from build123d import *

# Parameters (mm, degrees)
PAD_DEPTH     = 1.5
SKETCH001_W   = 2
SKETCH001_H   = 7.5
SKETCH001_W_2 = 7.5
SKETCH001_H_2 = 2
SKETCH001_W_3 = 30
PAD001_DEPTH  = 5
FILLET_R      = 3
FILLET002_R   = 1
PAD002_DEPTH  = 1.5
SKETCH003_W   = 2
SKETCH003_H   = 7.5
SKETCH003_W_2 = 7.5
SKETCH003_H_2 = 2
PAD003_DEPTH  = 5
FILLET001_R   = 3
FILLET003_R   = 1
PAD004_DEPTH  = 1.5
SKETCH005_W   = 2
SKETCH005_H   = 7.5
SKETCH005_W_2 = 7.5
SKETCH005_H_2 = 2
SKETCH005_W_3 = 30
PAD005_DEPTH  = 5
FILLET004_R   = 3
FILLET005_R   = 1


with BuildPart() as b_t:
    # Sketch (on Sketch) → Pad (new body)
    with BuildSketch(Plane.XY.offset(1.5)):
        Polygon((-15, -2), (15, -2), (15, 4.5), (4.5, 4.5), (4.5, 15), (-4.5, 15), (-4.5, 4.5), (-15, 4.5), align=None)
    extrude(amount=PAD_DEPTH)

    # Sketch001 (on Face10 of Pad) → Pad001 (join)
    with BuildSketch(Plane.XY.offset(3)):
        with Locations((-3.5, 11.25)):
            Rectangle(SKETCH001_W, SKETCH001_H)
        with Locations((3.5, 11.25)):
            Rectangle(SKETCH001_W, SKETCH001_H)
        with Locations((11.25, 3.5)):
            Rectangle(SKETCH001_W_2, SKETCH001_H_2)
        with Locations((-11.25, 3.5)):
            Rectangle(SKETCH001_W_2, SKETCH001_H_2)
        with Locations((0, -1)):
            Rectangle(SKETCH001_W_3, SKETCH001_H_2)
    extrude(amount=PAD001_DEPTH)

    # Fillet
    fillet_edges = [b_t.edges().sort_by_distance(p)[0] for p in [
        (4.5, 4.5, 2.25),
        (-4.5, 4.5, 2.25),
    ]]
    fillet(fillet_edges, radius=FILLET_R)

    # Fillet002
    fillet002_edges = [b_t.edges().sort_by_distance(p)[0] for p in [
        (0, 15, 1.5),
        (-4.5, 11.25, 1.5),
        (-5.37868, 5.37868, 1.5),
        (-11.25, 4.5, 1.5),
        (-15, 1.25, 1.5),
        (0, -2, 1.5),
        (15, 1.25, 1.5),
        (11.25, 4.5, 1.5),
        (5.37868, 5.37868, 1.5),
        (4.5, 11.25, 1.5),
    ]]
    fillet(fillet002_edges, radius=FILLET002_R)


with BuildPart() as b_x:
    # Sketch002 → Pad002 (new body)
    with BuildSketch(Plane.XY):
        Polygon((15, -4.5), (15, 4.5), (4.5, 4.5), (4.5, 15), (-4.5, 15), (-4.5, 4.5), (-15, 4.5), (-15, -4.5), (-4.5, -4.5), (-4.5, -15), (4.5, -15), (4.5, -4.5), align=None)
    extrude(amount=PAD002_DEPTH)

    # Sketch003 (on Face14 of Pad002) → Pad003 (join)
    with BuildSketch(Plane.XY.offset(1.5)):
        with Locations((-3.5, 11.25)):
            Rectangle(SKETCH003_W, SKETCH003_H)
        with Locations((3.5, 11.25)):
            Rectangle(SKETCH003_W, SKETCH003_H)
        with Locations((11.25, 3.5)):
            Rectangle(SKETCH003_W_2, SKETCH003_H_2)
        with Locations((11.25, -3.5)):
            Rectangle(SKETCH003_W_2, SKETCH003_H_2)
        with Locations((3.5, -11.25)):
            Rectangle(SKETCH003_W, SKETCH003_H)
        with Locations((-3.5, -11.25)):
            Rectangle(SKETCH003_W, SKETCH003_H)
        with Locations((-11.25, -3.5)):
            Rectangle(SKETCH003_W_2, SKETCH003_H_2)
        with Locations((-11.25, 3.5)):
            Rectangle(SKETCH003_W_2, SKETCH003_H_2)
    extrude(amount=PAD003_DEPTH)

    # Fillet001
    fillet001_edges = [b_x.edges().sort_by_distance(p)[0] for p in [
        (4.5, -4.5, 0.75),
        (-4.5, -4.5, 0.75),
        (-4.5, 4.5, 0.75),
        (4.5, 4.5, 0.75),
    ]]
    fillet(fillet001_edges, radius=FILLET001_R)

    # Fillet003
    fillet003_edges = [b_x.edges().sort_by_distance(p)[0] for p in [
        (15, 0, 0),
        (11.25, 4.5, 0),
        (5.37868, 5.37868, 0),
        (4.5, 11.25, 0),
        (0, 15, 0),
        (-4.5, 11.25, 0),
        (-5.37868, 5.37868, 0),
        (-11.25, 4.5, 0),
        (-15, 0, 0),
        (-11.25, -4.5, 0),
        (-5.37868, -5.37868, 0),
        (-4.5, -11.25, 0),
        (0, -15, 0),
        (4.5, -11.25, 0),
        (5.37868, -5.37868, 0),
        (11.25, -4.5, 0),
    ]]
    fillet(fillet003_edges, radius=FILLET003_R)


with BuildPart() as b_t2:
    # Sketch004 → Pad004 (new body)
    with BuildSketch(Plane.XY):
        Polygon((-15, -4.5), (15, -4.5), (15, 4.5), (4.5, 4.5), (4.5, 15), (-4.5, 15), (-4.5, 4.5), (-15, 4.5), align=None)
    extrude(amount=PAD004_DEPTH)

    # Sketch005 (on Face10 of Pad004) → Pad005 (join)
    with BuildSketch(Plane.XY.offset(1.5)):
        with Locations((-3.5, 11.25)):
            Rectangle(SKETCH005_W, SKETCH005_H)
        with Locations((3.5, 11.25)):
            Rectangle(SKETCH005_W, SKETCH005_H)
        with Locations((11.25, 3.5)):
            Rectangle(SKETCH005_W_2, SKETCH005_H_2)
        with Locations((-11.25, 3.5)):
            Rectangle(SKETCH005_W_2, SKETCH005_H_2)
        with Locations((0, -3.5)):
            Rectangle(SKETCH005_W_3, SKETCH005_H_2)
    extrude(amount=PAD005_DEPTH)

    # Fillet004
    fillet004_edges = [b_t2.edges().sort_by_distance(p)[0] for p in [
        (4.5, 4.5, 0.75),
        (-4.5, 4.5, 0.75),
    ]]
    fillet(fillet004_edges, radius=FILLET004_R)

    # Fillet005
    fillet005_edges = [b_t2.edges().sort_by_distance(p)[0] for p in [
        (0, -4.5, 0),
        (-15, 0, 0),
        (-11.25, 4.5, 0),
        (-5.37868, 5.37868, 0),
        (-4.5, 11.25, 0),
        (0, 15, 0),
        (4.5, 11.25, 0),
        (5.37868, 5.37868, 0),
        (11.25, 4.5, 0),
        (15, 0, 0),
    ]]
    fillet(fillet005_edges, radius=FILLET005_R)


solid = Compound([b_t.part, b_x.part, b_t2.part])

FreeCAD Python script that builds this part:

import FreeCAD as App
import Part
import Sketcher
Q = App.Units.Quantity


def edges_at(feature, points):
    """Names of the edges that pass closest to the given points."""
    edges = feature.Shape.Edges
    near = lambda p: min(range(len(edges)), key=lambda i: edges[i].distToShape(Part.Vertex(*p))[0])
    return sorted({f"Edge{near(p) + 1}" for p in points})

doc = App.newDocument("Part")
params = doc.addObject("Spreadsheet::Sheet", "Params")
for row, (alias, value) in enumerate([
    ("sketch1_width", "30 mm"),
    ("sketch1_width2", "9 mm"),
    ("sketch1_height", "6.5 mm"),
    ("pad1_length", "1.5 mm"),
    ("sketch2_width", "2 mm"),
    ("sketch2_width2", "30 mm"),
    ("sketch2_width3", "7.5 mm"),
    ("pad2_length", "5 mm"),
    ("fillet_radius", "3 mm"),
    ("fillet2_radius", "1 mm"),
    ("sketch3_width", "9 mm"),
    ("sketch3_width2", "10.5 mm"),
    ("pad3_length", "1.5 mm"),
    ("sketch4_width", "2 mm"),
    ("sketch4_width2", "7.5 mm"),
    ("pad4_length", "5 mm"),
    ("fillet3_radius", "3 mm"),
    ("fillet4_radius", "1 mm"),
    ("sketch5_width", "30 mm"),
    ("sketch5_width2", "9 mm"),
    ("pad5_length", "1.5 mm"),
    ("sketch6_width", "2 mm"),
    ("sketch6_width2", "30 mm"),
    ("sketch6_width3", "7.5 mm"),
    ("pad6_length", "5 mm"),
    ("fillet5_radius", "3 mm"),
    ("fillet6_radius", "1 mm"),
], start=1):
    params.set(f"A{row}", alias)
    params.set(f"B{row}", "=" + value)
    params.setAlias(f"B{row}", alias)

body = doc.addObject("PartDesign::Body", "Body")

# Sketch on XY plane
sketch1 = body.newObject("Sketcher::SketchObject", "Sketch")
sketch1.AttachmentSupport = (doc.getObject("XY_Plane"), [""])
sketch1.MapMode = "FlatFace"
sketch1.AttachmentOffset = App.Placement(App.Vector(0, 0, 1.5), App.Rotation())
sketch1.addGeometry([
    Part.LineSegment(App.Vector(-15, -2, 0), App.Vector(15, -2, 0)),  # 0
    Part.LineSegment(App.Vector(15, -2, 0), App.Vector(15, 4, 0)),  # 1
    Part.LineSegment(App.Vector(15, 4, 0), App.Vector(4, 4, 0)),  # 2
    Part.LineSegment(App.Vector(4, 4, 0), App.Vector(4, 15, 0)),  # 3
    Part.LineSegment(App.Vector(4, 15, 0), App.Vector(-4, 15, 0)),  # 4
    Part.LineSegment(App.Vector(-4, 15, 0), App.Vector(-4, 4, 0)),  # 5
    Part.LineSegment(App.Vector(-4, 4, 0), App.Vector(-15, 4, 0)),  # 6
    Part.LineSegment(App.Vector(-15, 4, 0), App.Vector(-15, -2, 0)),  # 7
], False)
sketch1.addConstraint([
    Sketcher.Constraint("Coincident", 0, 2, 1, 1),
    Sketcher.Constraint("Coincident", 1, 2, 2, 1),
    Sketcher.Constraint("Coincident", 2, 2, 3, 1),
    Sketcher.Constraint("Coincident", 3, 2, 4, 1),
    Sketcher.Constraint("Coincident", 4, 2, 5, 1),
    Sketcher.Constraint("Coincident", 5, 2, 6, 1),
    Sketcher.Constraint("Coincident", 6, 2, 7, 1),
    Sketcher.Constraint("Coincident", 7, 2, 0, 1),
    Sketcher.Constraint("Horizontal", 0),
    Sketcher.Constraint("Vertical", 1),
    Sketcher.Constraint("Horizontal", 2),
    Sketcher.Constraint("Vertical", 3),
    Sketcher.Constraint("Horizontal", 4),
    Sketcher.Constraint("Vertical", 5),
    Sketcher.Constraint("Horizontal", 6),
    Sketcher.Constraint("Vertical", 7),
    Sketcher.Constraint("Symmetric", 2, 2, 5, 2, -2),
    Sketcher.Constraint("Equal", 2, 6),
    Sketcher.Constraint("Equal", 6, 3),
    Sketcher.Constraint("DistanceX", 0, 1, 0, 2, Q("30 mm")),
    Sketcher.Constraint("DistanceX", 4, 2, 4, 1, Q("9 mm")),
    Sketcher.Constraint("DistanceY", 1, 1, 1, 2, Q("6.5 mm")),
    Sketcher.Constraint("DistanceY", 0, 2, -1, 1, Q("2 mm")),
])
sketch1.setExpression("Constraints[19]", "Params.sketch1_width")
sketch1.setExpression("Constraints[20]", "Params.sketch1_width2")
sketch1.setExpression("Constraints[21]", "Params.sketch1_height")
pad1 = body.newObject("PartDesign::Pad", "Pad")
pad1.Profile = sketch1
pad1.setExpression("Length", "Params.pad1_length")

# Sketch on XY plane
sketch2 = body.newObject("Sketcher::SketchObject", "Sketch001")
sketch2.AttachmentSupport = (doc.getObject("XY_Plane"), [""])
sketch2.MapMode = "FlatFace"
sketch2.AttachmentOffset = App.Placement(App.Vector(0, 0, 3), App.Rotation())
sketch2.addGeometry([
    Part.LineSegment(App.Vector(-4.5, 15, 0), App.Vector(-4.5, 7.5, 0)),  # 0
    Part.LineSegment(App.Vector(-4.5, 7.5, 0), App.Vector(-2.5, 7.5, 0)),  # 1
    Part.LineSegment(App.Vector(-2.5, 7.5, 0), App.Vector(-2.5, 15, 0)),  # 2
    Part.LineSegment(App.Vector(-2.5, 15, 0), App.Vector(-4.5, 15, 0)),  # 3
    Part.LineSegment(App.Vector(2.5, 15, 0), App.Vector(2.5, 7.5, 0)),  # 4
    Part.LineSegment(App.Vector(2.5, 7.5, 0), App.Vector(4.5, 7.5, 0)),  # 5
    Part.LineSegment(App.Vector(4.5, 7.5, 0), App.Vector(4.5, 15, 0)),  # 6
    Part.LineSegment(App.Vector(4.5, 15, 0), App.Vector(2.5, 15, 0)),  # 7
    Part.LineSegment(App.Vector(7.5, 4.5, 0), App.Vector(7.5, 2.5, 0)),  # 8
    Part.LineSegment(App.Vector(7.5, 2.5, 0), App.Vector(15, 2.5, 0)),  # 9
    Part.LineSegment(App.Vector(15, 2.5, 0), App.Vector(15, 4.5, 0)),  # 10
    Part.LineSegment(App.Vector(15, 4.5, 0), App.Vector(7.5, 4.5, 0)),  # 11
    Part.LineSegment(App.Vector(-15, 4.5, 0), App.Vector(-15, 2.5, 0)),  # 12
    Part.LineSegment(App.Vector(-15, 2.5, 0), App.Vector(-7.5, 2.5, 0)),  # 13
    Part.LineSegment(App.Vector(-7.5, 2.5, 0), App.Vector(-7.5, 4.5, 0)),  # 14
    Part.LineSegment(App.Vector(-7.5, 4.5, 0), App.Vector(-15, 4.5, 0)),  # 15
    Part.LineSegment(App.Vector(-15, 0, 0), App.Vector(-15, -2, 0)),  # 16
    Part.LineSegment(App.Vector(-15, -2, 0), App.Vector(15, -2, 0)),  # 17
    Part.LineSegment(App.Vector(15, -2, 0), App.Vector(15, 0, 0)),  # 18
    Part.LineSegment(App.Vector(15, 0, 0), App.Vector(-15, 0, 0)),  # 19
], False)
sketch2.addConstraint([
    Sketcher.Constraint("Coincident", 0, 2, 1, 1),
    Sketcher.Constraint("Coincident", 1, 2, 2, 1),
    Sketcher.Constraint("Coincident", 2, 2, 3, 1),
    Sketcher.Constraint("Coincident", 3, 2, 0, 1),
    Sketcher.Constraint("Coincident", 4, 2, 5, 1),
    Sketcher.Constraint("Coincident", 5, 2, 6, 1),
    Sketcher.Constraint("Coincident", 6, 2, 7, 1),
    Sketcher.Constraint("Coincident", 7, 2, 4, 1),
    Sketcher.Constraint("Coincident", 8, 2, 9, 1),
    Sketcher.Constraint("Coincident", 9, 2, 10, 1),
    Sketcher.Constraint("Coincident", 10, 2, 11, 1),
    Sketcher.Constraint("Coincident", 11, 2, 8, 1),
    Sketcher.Constraint("Coincident", 12, 2, 13, 1),
    Sketcher.Constraint("Coincident", 13, 2, 14, 1),
    Sketcher.Constraint("Coincident", 14, 2, 15, 1),
    Sketcher.Constraint("Coincident", 15, 2, 12, 1),
    Sketcher.Constraint("Coincident", 16, 2, 17, 1),
    Sketcher.Constraint("Coincident", 17, 2, 18, 1),
    Sketcher.Constraint("Coincident", 18, 2, 19, 1),
    Sketcher.Constraint("Coincident", 19, 2, 16, 1),
    Sketcher.Constraint("Vertical", 0),
    Sketcher.Constraint("Horizontal", 1),
    Sketcher.Constraint("Vertical", 2),
    Sketcher.Constraint("Horizontal", 3),
    Sketcher.Constraint("Vertical", 4),
    Sketcher.Constraint("Horizontal", 5),
    Sketcher.Constraint("Vertical", 6),
    Sketcher.Constraint("Horizontal", 7),
    Sketcher.Constraint("Vertical", 8),
    Sketcher.Constraint("Horizontal", 9),
    Sketcher.Constraint("Vertical", 10),
    Sketcher.Constraint("Horizontal", 11),
    Sketcher.Constraint("Vertical", 12),
    Sketcher.Constraint("Horizontal", 13),
    Sketcher.Constraint("Vertical", 14),
    Sketcher.Constraint("Horizontal", 15),
    Sketcher.Constraint("Vertical", 16),
    Sketcher.Constraint("Horizontal", 17),
    Sketcher.Constraint("Vertical", 18),
    Sketcher.Constraint("Horizontal", 19),
    Sketcher.Constraint("Symmetric", 18, 2, 19, 2, -1, 1),
    Sketcher.Constraint("Symmetric", 1, 2, 4, 2, -2),
    Sketcher.Constraint("Symmetric", 3, 2, 6, 2, -2),
    Sketcher.Constraint("Symmetric", 9, 2, 12, 2, -2),
    Sketcher.Constraint("Symmetric", 11, 2, 14, 2, -2),
    Sketcher.Constraint("Vertical", 15, 2, 16, 2),
    Sketcher.Constraint("Equal", 15, 0),
    Sketcher.Constraint("Equal", 7, 8),
    Sketcher.Constraint("Equal", 14, 16),
    Sketcher.Constraint("DistanceX", 1, 1, 1, 2, Q("2 mm")),
    Sketcher.Constraint("DistanceX", 17, 1, 17, 2, Q("30 mm")),
    Sketcher.Constraint("DistanceX", 9, 1, 9, 2, Q("7.5 mm")),
    Sketcher.Constraint("DistanceY", -1, 1, 2, 2, Q("15 mm")),
    Sketcher.Constraint("DistanceX", 1, 2, 4, 2, Q("5 mm")),
    Sketcher.Constraint("DistanceY", 8, 2, 5, 2, Q("5 mm")),
])
sketch2.setExpression("Constraints[49]", "Params.sketch2_width")
sketch2.setExpression("Constraints[50]", "Params.sketch2_width2")
sketch2.setExpression("Constraints[51]", "Params.sketch2_width3")
pad2 = body.newObject("PartDesign::Pad", "Pad001")
pad2.Profile = sketch2
pad2.setExpression("Length", "Params.pad2_length")
doc.recompute()

fillet = body.newObject("PartDesign::Fillet", "Fillet")
fillet.Base = (pad2, edges_at(pad2, [(4.5, 4.5, 2.25), (-4.5, 4.5, 2.25)]))
fillet.setExpression("Radius", "Params.fillet_radius")
doc.recompute()

fillet2 = body.newObject("PartDesign::Fillet", "Fillet001")
fillet2.Base = (fillet, edges_at(fillet, [
    (0, 15, 1.5),
    (-4.5, 11.25, 1.5),
    (-5.379, 5.379, 1.5),
    (-11.25, 4.5, 1.5),
    (-15, 1.25, 1.5),
    (0, -2, 1.5),
    (15, 1.25, 1.5),
    (11.25, 4.5, 1.5),
    (5.379, 5.379, 1.5),
    (4.5, 11.25, 1.5),
]))
fillet2.setExpression("Radius", "Params.fillet2_radius")
body2 = doc.addObject("PartDesign::Body", "Body001")

# Sketch on XY plane
sketch3 = body2.newObject("Sketcher::SketchObject", "Sketch002")
sketch3.AttachmentSupport = (doc.getObject("XY_Plane001"), [""])
sketch3.MapMode = "FlatFace"
sketch3.addGeometry([
    Part.LineSegment(App.Vector(15, -4, 0), App.Vector(15, 4, 0)),  # 0
    Part.LineSegment(App.Vector(15, 4, 0), App.Vector(4, 4, 0)),  # 1
    Part.LineSegment(App.Vector(4, 4, 0), App.Vector(4, 15, 0)),  # 2
    Part.LineSegment(App.Vector(4, 15, 0), App.Vector(-4, 15, 0)),  # 3
    Part.LineSegment(App.Vector(-4, 15, 0), App.Vector(-4, 4, 0)),  # 4
    Part.LineSegment(App.Vector(-4, 4, 0), App.Vector(-15, 4, 0)),  # 5
    Part.LineSegment(App.Vector(-15, 4, 0), App.Vector(-15, -4, 0)),  # 6
    Part.LineSegment(App.Vector(-15, -4, 0), App.Vector(-4, -4, 0)),  # 7
    Part.LineSegment(App.Vector(-4, -4, 0), App.Vector(-4, -15, 0)),  # 8
    Part.LineSegment(App.Vector(-4, -15, 0), App.Vector(4, -15, 0)),  # 9
    Part.LineSegment(App.Vector(4, -15, 0), App.Vector(4, -4, 0)),  # 10
    Part.LineSegment(App.Vector(4, -4, 0), App.Vector(15, -4, 0)),  # 11
], False)
sketch3.addConstraint([
    Sketcher.Constraint("Coincident", 0, 2, 1, 1),
    Sketcher.Constraint("Coincident", 1, 2, 2, 1),
    Sketcher.Constraint("Coincident", 2, 2, 3, 1),
    Sketcher.Constraint("Coincident", 3, 2, 4, 1),
    Sketcher.Constraint("Coincident", 4, 2, 5, 1),
    Sketcher.Constraint("Coincident", 5, 2, 6, 1),
    Sketcher.Constraint("Coincident", 6, 2, 7, 1),
    Sketcher.Constraint("Coincident", 7, 2, 8, 1),
    Sketcher.Constraint("Coincident", 8, 2, 9, 1),
    Sketcher.Constraint("Coincident", 9, 2, 10, 1),
    Sketcher.Constraint("Coincident", 10, 2, 11, 1),
    Sketcher.Constraint("Coincident", 11, 2, 0, 1),
    Sketcher.Constraint("Vertical", 0),
    Sketcher.Constraint("Horizontal", 1),
    Sketcher.Constraint("Vertical", 2),
    Sketcher.Constraint("Horizontal", 3),
    Sketcher.Constraint("Vertical", 4),
    Sketcher.Constraint("Horizontal", 5),
    Sketcher.Constraint("Vertical", 6),
    Sketcher.Constraint("Horizontal", 7),
    Sketcher.Constraint("Vertical", 8),
    Sketcher.Constraint("Horizontal", 9),
    Sketcher.Constraint("Vertical", 10),
    Sketcher.Constraint("Horizontal", 11),
    Sketcher.Constraint("Symmetric", 0, 2, 6, 2, -1, 1),
    Sketcher.Constraint("Symmetric", 2, 2, 8, 2, -1, 1),
    Sketcher.Constraint("Symmetric", 4, 2, 10, 2, -1, 1),
    Sketcher.Constraint("Symmetric", 1, 2, 4, 2, -2),
    Sketcher.Constraint("Equal", 9, 0),
    Sketcher.Constraint("Equal", 11, 2),
    Sketcher.Constraint("DistanceX", 3, 2, 3, 1, Q("9 mm")),
    Sketcher.Constraint("DistanceX", 1, 2, 1, 1, Q("10.5 mm")),
])
sketch3.setExpression("Constraints[30]", "Params.sketch3_width")
sketch3.setExpression("Constraints[31]", "Params.sketch3_width2")
pad3 = body2.newObject("PartDesign::Pad", "Pad002")
pad3.Profile = sketch3
pad3.setExpression("Length", "Params.pad3_length")

# Sketch on XY plane
sketch4 = body2.newObject("Sketcher::SketchObject", "Sketch003")
sketch4.AttachmentSupport = (doc.getObject("XY_Plane001"), [""])
sketch4.MapMode = "FlatFace"
sketch4.AttachmentOffset = App.Placement(App.Vector(0, 0, 1.5), App.Rotation())
sketch4.addGeometry([
    Part.LineSegment(App.Vector(-4.5, 15, 0), App.Vector(-4.5, 7.5, 0)),  # 0
    Part.LineSegment(App.Vector(-4.5, 7.5, 0), App.Vector(-2.5, 7.5, 0)),  # 1
    Part.LineSegment(App.Vector(-2.5, 7.5, 0), App.Vector(-2.5, 15, 0)),  # 2
    Part.LineSegment(App.Vector(-2.5, 15, 0), App.Vector(-4.5, 15, 0)),  # 3
    Part.LineSegment(App.Vector(2.5, 15, 0), App.Vector(2.5, 7.5, 0)),  # 4
    Part.LineSegment(App.Vector(2.5, 7.5, 0), App.Vector(4.5, 7.5, 0)),  # 5
    Part.LineSegment(App.Vector(4.5, 7.5, 0), App.Vector(4.5, 15, 0)),  # 6
    Part.LineSegment(App.Vector(4.5, 15, 0), App.Vector(2.5, 15, 0)),  # 7
    Part.LineSegment(App.Vector(7.5, 4.5, 0), App.Vector(7.5, 2.5, 0)),  # 8
    Part.LineSegment(App.Vector(7.5, 2.5, 0), App.Vector(15, 2.5, 0)),  # 9
    Part.LineSegment(App.Vector(15, 2.5, 0), App.Vector(15, 4.5, 0)),  # 10
    Part.LineSegment(App.Vector(15, 4.5, 0), App.Vector(7.5, 4.5, 0)),  # 11
    Part.LineSegment(App.Vector(7.5, -2.5, 0), App.Vector(7.5, -4.5, 0)),  # 12
    Part.LineSegment(App.Vector(7.5, -4.5, 0), App.Vector(15, -4.5, 0)),  # 13
    Part.LineSegment(App.Vector(15, -4.5, 0), App.Vector(15, -2.5, 0)),  # 14
    Part.LineSegment(App.Vector(15, -2.5, 0), App.Vector(7.5, -2.5, 0)),  # 15
    Part.LineSegment(App.Vector(2.5, -7.5, 0), App.Vector(2.5, -15, 0)),  # 16
    Part.LineSegment(App.Vector(2.5, -15, 0), App.Vector(4.5, -15, 0)),  # 17
    Part.LineSegment(App.Vector(4.5, -15, 0), App.Vector(4.5, -7.5, 0)),  # 18
    Part.LineSegment(App.Vector(4.5, -7.5, 0), App.Vector(2.5, -7.5, 0)),  # 19
    Part.LineSegment(App.Vector(-4.5, -7.5, 0), App.Vector(-4.5, -15, 0)),  # 20
    Part.LineSegment(App.Vector(-4.5, -15, 0), App.Vector(-2.5, -15, 0)),  # 21
    Part.LineSegment(App.Vector(-2.5, -15, 0), App.Vector(-2.5, -7.5, 0)),  # 22
    Part.LineSegment(App.Vector(-2.5, -7.5, 0), App.Vector(-4.5, -7.5, 0)),  # 23
    Part.LineSegment(App.Vector(-15, -2.5, 0), App.Vector(-15, -4.5, 0)),  # 24
    Part.LineSegment(App.Vector(-15, -4.5, 0), App.Vector(-7.5, -4.5, 0)),  # 25
    Part.LineSegment(App.Vector(-7.5, -4.5, 0), App.Vector(-7.5, -2.5, 0)),  # 26
    Part.LineSegment(App.Vector(-7.5, -2.5, 0), App.Vector(-15, -2.5, 0)),  # 27
    Part.LineSegment(App.Vector(-15, 4.5, 0), App.Vector(-15, 2.5, 0)),  # 28
    Part.LineSegment(App.Vector(-15, 2.5, 0), App.Vector(-7.5, 2.5, 0)),  # 29
    Part.LineSegment(App.Vector(-7.5, 2.5, 0), App.Vector(-7.5, 4.5, 0)),  # 30
    Part.LineSegment(App.Vector(-7.5, 4.5, 0), App.Vector(-15, 4.5, 0)),  # 31
], False)
sketch4.addConstraint([
    Sketcher.Constraint("Coincident", 0, 2, 1, 1),
    Sketcher.Constraint("Coincident", 1, 2, 2, 1),
    Sketcher.Constraint("Coincident", 2, 2, 3, 1),
    Sketcher.Constraint("Coincident", 3, 2, 0, 1),
    Sketcher.Constraint("Coincident", 4, 2, 5, 1),
    Sketcher.Constraint("Coincident", 5, 2, 6, 1),
    Sketcher.Constraint("Coincident", 6, 2, 7, 1),
    Sketcher.Constraint("Coincident", 7, 2, 4, 1),
    Sketcher.Constraint("Coincident", 8, 2, 9, 1),
    Sketcher.Constraint("Coincident", 9, 2, 10, 1),
    Sketcher.Constraint("Coincident", 10, 2, 11, 1),
    Sketcher.Constraint("Coincident", 11, 2, 8, 1),
    Sketcher.Constraint("Coincident", 12, 2, 13, 1),
    Sketcher.Constraint("Coincident", 13, 2, 14, 1),
    Sketcher.Constraint("Coincident", 14, 2, 15, 1),
    Sketcher.Constraint("Coincident", 15, 2, 12, 1),
    Sketcher.Constraint("Coincident", 16, 2, 17, 1),
    Sketcher.Constraint("Coincident", 17, 2, 18, 1),
    Sketcher.Constraint("Coincident", 18, 2, 19, 1),
    Sketcher.Constraint("Coincident", 19, 2, 16, 1),
    Sketcher.Constraint("Coincident", 20, 2, 21, 1),
    Sketcher.Constraint("Coincident", 21, 2, 22, 1),
    Sketcher.Constraint("Coincident", 22, 2, 23, 1),
    Sketcher.Constraint("Coincident", 23, 2, 20, 1),
    Sketcher.Constraint("Coincident", 24, 2, 25, 1),
    Sketcher.Constraint("Coincident", 25, 2, 26, 1),
    Sketcher.Constraint("Coincident", 26, 2, 27, 1),
    Sketcher.Constraint("Coincident", 27, 2, 24, 1),
    Sketcher.Constraint("Coincident", 28, 2, 29, 1),
    Sketcher.Constraint("Coincident", 29, 2, 30, 1),
    Sketcher.Constraint("Coincident", 30, 2, 31, 1),
    Sketcher.Constraint("Coincident", 31, 2, 28, 1),
    Sketcher.Constraint("Vertical", 0),
    Sketcher.Constraint("Horizontal", 1),
    Sketcher.Constraint("Vertical", 2),
    Sketcher.Constraint("Horizontal", 3),
    Sketcher.Constraint("Vertical", 4),
    Sketcher.Constraint("Horizontal", 5),
    Sketcher.Constraint("Vertical", 6),
    Sketcher.Constraint("Horizontal", 7),
    Sketcher.Constraint("Vertical", 8),
    Sketcher.Constraint("Horizontal", 9),
    Sketcher.Constraint("Vertical", 10),
    Sketcher.Constraint("Horizontal", 11),
    Sketcher.Constraint("Vertical", 12),
    Sketcher.Constraint("Horizontal", 13),
    Sketcher.Constraint("Vertical", 14),
    Sketcher.Constraint("Horizontal", 15),
    Sketcher.Constraint("Vertical", 16),
    Sketcher.Constraint("Horizontal", 17),
    Sketcher.Constraint("Vertical", 18),
    Sketcher.Constraint("Horizontal", 19),
    Sketcher.Constraint("Vertical", 20),
    Sketcher.Constraint("Horizontal", 21),
    Sketcher.Constraint("Vertical", 22),
    Sketcher.Constraint("Horizontal", 23),
    Sketcher.Constraint("Vertical", 24),
    Sketcher.Constraint("Horizontal", 25),
    Sketcher.Constraint("Vertical", 26),
    Sketcher.Constraint("Horizontal", 27),
    Sketcher.Constraint("Vertical", 28),
    Sketcher.Constraint("Horizontal", 29),
    Sketcher.Constraint("Vertical", 30),
    Sketcher.Constraint("Horizontal", 31),
    Sketcher.Constraint("Symmetric", 2, 2, 16, 2, -1, 1),
    Sketcher.Constraint("Symmetric", 0, 2, 18, 2, -1, 1),
    Sketcher.Constraint("Symmetric", 6, 2, 20, 2, -1, 1),
    Sketcher.Constraint("Symmetric", 4, 2, 22, 2, -1, 1),
    Sketcher.Constraint("Symmetric", 10, 2, 24, 2, -1, 1),
    Sketcher.Constraint("Symmetric", 8, 2, 26, 2, -1, 1),
    Sketcher.Constraint("Symmetric", 14, 2, 28, 2, -1, 1),
    Sketcher.Constraint("Symmetric", 12, 2, 30, 2, -1, 1),
    Sketcher.Constraint("Symmetric", 1, 2, 4, 2, -2),
    Sketcher.Constraint("Symmetric", 3, 2, 6, 2, -2),
    Sketcher.Constraint("Symmetric", 13, 2, 24, 2, -2),
    Sketcher.Constraint("Symmetric", 15, 2, 26, 2, -2),
    Sketcher.Constraint("Equal", 31, 0),
    Sketcher.Constraint("Equal", 23, 8),
    Sketcher.Constraint("DistanceX", 1, 1, 1, 2, Q("2 mm")),
    Sketcher.Constraint("DistanceX", 9, 1, 9, 2, Q("7.5 mm")),
    Sketcher.Constraint("DistanceY", -1, 1, 2, 2, Q("15 mm")),
    Sketcher.Constraint("DistanceX", -1, 1, 9, 2, Q("15 mm")),
    Sketcher.Constraint("DistanceX", 1, 2, 4, 2, Q("5 mm")),
    Sketcher.Constraint("DistanceY", 8, 2, 5, 2, Q("5 mm")),
])
sketch4.setExpression("Constraints[78]", "Params.sketch4_width")
sketch4.setExpression("Constraints[79]", "Params.sketch4_width2")
pad4 = body2.newObject("PartDesign::Pad", "Pad003")
pad4.Profile = sketch4
pad4.setExpression("Length", "Params.pad4_length")
doc.recompute()

fillet3 = body2.newObject("PartDesign::Fillet", "Fillet002")
fillet3.Base = (pad4, edges_at(pad4, [
    (4.5, -4.5, 0.75),
    (-4.5, -4.5, 0.75),
    (-4.5, 4.5, 0.75),
    (4.5, 4.5, 0.75),
]))
fillet3.setExpression("Radius", "Params.fillet3_radius")
doc.recompute()

fillet4 = body2.newObject("PartDesign::Fillet", "Fillet003")
fillet4.Base = (fillet3, edges_at(fillet3, [
    (15, 0, 0),
    (11.25, 4.5, 0),
    (5.379, 5.379, 0),
    (4.5, 11.25, 0),
    (0, 15, 0),
    (-4.5, 11.25, 0),
    (-5.379, 5.379, 0),
    (-11.25, 4.5, 0),
    (-15, 0, 0),
    (-11.25, -4.5, 0),
    (-5.379, -5.379, 0),
    (-4.5, -11.25, 0),
    (0, -15, 0),
    (4.5, -11.25, 0),
    (5.379, -5.379, 0),
    (11.25, -4.5, 0),
]))
fillet4.setExpression("Radius", "Params.fillet4_radius")
body3 = doc.addObject("PartDesign::Body", "Body002")

# Sketch on XY plane
sketch5 = body3.newObject("Sketcher::SketchObject", "Sketch004")
sketch5.AttachmentSupport = (doc.getObject("XY_Plane002"), [""])
sketch5.MapMode = "FlatFace"
sketch5.addGeometry([
    Part.LineSegment(App.Vector(-15, -4, 0), App.Vector(15, -4, 0)),  # 0
    Part.LineSegment(App.Vector(15, -4, 0), App.Vector(15, 4, 0)),  # 1
    Part.LineSegment(App.Vector(15, 4, 0), App.Vector(4, 4, 0)),  # 2
    Part.LineSegment(App.Vector(4, 4, 0), App.Vector(4, 15, 0)),  # 3
    Part.LineSegment(App.Vector(4, 15, 0), App.Vector(-4, 15, 0)),  # 4
    Part.LineSegment(App.Vector(-4, 15, 0), App.Vector(-4, 4, 0)),  # 5
    Part.LineSegment(App.Vector(-4, 4, 0), App.Vector(-15, 4, 0)),  # 6
    Part.LineSegment(App.Vector(-15, 4, 0), App.Vector(-15, -4, 0)),  # 7
], False)
sketch5.addConstraint([
    Sketcher.Constraint("Coincident", 0, 2, 1, 1),
    Sketcher.Constraint("Coincident", 1, 2, 2, 1),
    Sketcher.Constraint("Coincident", 2, 2, 3, 1),
    Sketcher.Constraint("Coincident", 3, 2, 4, 1),
    Sketcher.Constraint("Coincident", 4, 2, 5, 1),
    Sketcher.Constraint("Coincident", 5, 2, 6, 1),
    Sketcher.Constraint("Coincident", 6, 2, 7, 1),
    Sketcher.Constraint("Coincident", 7, 2, 0, 1),
    Sketcher.Constraint("Horizontal", 0),
    Sketcher.Constraint("Vertical", 1),
    Sketcher.Constraint("Horizontal", 2),
    Sketcher.Constraint("Vertical", 3),
    Sketcher.Constraint("Horizontal", 4),
    Sketcher.Constraint("Vertical", 5),
    Sketcher.Constraint("Horizontal", 6),
    Sketcher.Constraint("Vertical", 7),
    Sketcher.Constraint("Symmetric", 0, 2, 6, 2, -1, 1),
    Sketcher.Constraint("Symmetric", 2, 2, 5, 2, -2),
    Sketcher.Constraint("Equal", 4, 1),
    Sketcher.Constraint("Equal", 6, 3),
    Sketcher.Constraint("DistanceX", 0, 1, 0, 2, Q("30 mm")),
    Sketcher.Constraint("DistanceX", 4, 2, 4, 1, Q("9 mm")),
])
sketch5.setExpression("Constraints[20]", "Params.sketch5_width")
sketch5.setExpression("Constraints[21]", "Params.sketch5_width2")
pad5 = body3.newObject("PartDesign::Pad", "Pad004")
pad5.Profile = sketch5
pad5.setExpression("Length", "Params.pad5_length")

# Sketch on XY plane
sketch6 = body3.newObject("Sketcher::SketchObject", "Sketch005")
sketch6.AttachmentSupport = (doc.getObject("XY_Plane002"), [""])
sketch6.MapMode = "FlatFace"
sketch6.AttachmentOffset = App.Placement(App.Vector(0, 0, 1.5), App.Rotation())
sketch6.addGeometry([
    Part.LineSegment(App.Vector(-4.5, 15, 0), App.Vector(-4.5, 7.5, 0)),  # 0
    Part.LineSegment(App.Vector(-4.5, 7.5, 0), App.Vector(-2.5, 7.5, 0)),  # 1
    Part.LineSegment(App.Vector(-2.5, 7.5, 0), App.Vector(-2.5, 15, 0)),  # 2
    Part.LineSegment(App.Vector(-2.5, 15, 0), App.Vector(-4.5, 15, 0)),  # 3
    Part.LineSegment(App.Vector(2.5, 15, 0), App.Vector(2.5, 7.5, 0)),  # 4
    Part.LineSegment(App.Vector(2.5, 7.5, 0), App.Vector(4.5, 7.5, 0)),  # 5
    Part.LineSegment(App.Vector(4.5, 7.5, 0), App.Vector(4.5, 15, 0)),  # 6
    Part.LineSegment(App.Vector(4.5, 15, 0), App.Vector(2.5, 15, 0)),  # 7
    Part.LineSegment(App.Vector(7.5, 4.5, 0), App.Vector(7.5, 2.5, 0)),  # 8
    Part.LineSegment(App.Vector(7.5, 2.5, 0), App.Vector(15, 2.5, 0)),  # 9
    Part.LineSegment(App.Vector(15, 2.5, 0), App.Vector(15, 4.5, 0)),  # 10
    Part.LineSegment(App.Vector(15, 4.5, 0), App.Vector(7.5, 4.5, 0)),  # 11
    Part.LineSegment(App.Vector(-15, 4.5, 0), App.Vector(-15, 2.5, 0)),  # 12
    Part.LineSegment(App.Vector(-15, 2.5, 0), App.Vector(-7.5, 2.5, 0)),  # 13
    Part.LineSegment(App.Vector(-7.5, 2.5, 0), App.Vector(-7.5, 4.5, 0)),  # 14
    Part.LineSegment(App.Vector(-7.5, 4.5, 0), App.Vector(-15, 4.5, 0)),  # 15
    Part.LineSegment(App.Vector(-15, -2.5, 0), App.Vector(-15, -4.5, 0)),  # 16
    Part.LineSegment(App.Vector(-15, -4.5, 0), App.Vector(15, -4.5, 0)),  # 17
    Part.LineSegment(App.Vector(15, -4.5, 0), App.Vector(15, -2.5, 0)),  # 18
    Part.LineSegment(App.Vector(15, -2.5, 0), App.Vector(-15, -2.5, 0)),  # 19
], False)
sketch6.addConstraint([
    Sketcher.Constraint("Coincident", 0, 2, 1, 1),
    Sketcher.Constraint("Coincident", 1, 2, 2, 1),
    Sketcher.Constraint("Coincident", 2, 2, 3, 1),
    Sketcher.Constraint("Coincident", 3, 2, 0, 1),
    Sketcher.Constraint("Coincident", 4, 2, 5, 1),
    Sketcher.Constraint("Coincident", 5, 2, 6, 1),
    Sketcher.Constraint("Coincident", 6, 2, 7, 1),
    Sketcher.Constraint("Coincident", 7, 2, 4, 1),
    Sketcher.Constraint("Coincident", 8, 2, 9, 1),
    Sketcher.Constraint("Coincident", 9, 2, 10, 1),
    Sketcher.Constraint("Coincident", 10, 2, 11, 1),
    Sketcher.Constraint("Coincident", 11, 2, 8, 1),
    Sketcher.Constraint("Coincident", 12, 2, 13, 1),
    Sketcher.Constraint("Coincident", 13, 2, 14, 1),
    Sketcher.Constraint("Coincident", 14, 2, 15, 1),
    Sketcher.Constraint("Coincident", 15, 2, 12, 1),
    Sketcher.Constraint("Coincident", 16, 2, 17, 1),
    Sketcher.Constraint("Coincident", 17, 2, 18, 1),
    Sketcher.Constraint("Coincident", 18, 2, 19, 1),
    Sketcher.Constraint("Coincident", 19, 2, 16, 1),
    Sketcher.Constraint("Vertical", 0),
    Sketcher.Constraint("Horizontal", 1),
    Sketcher.Constraint("Vertical", 2),
    Sketcher.Constraint("Horizontal", 3),
    Sketcher.Constraint("Vertical", 4),
    Sketcher.Constraint("Horizontal", 5),
    Sketcher.Constraint("Vertical", 6),
    Sketcher.Constraint("Horizontal", 7),
    Sketcher.Constraint("Vertical", 8),
    Sketcher.Constraint("Horizontal", 9),
    Sketcher.Constraint("Vertical", 10),
    Sketcher.Constraint("Horizontal", 11),
    Sketcher.Constraint("Vertical", 12),
    Sketcher.Constraint("Horizontal", 13),
    Sketcher.Constraint("Vertical", 14),
    Sketcher.Constraint("Horizontal", 15),
    Sketcher.Constraint("Vertical", 16),
    Sketcher.Constraint("Horizontal", 17),
    Sketcher.Constraint("Vertical", 18),
    Sketcher.Constraint("Horizontal", 19),
    Sketcher.Constraint("Symmetric", 10, 2, 16, 2, -1, 1),
    Sketcher.Constraint("Symmetric", 15, 2, 17, 2, -1, 1),
    Sketcher.Constraint("Symmetric", 1, 2, 4, 2, -2),
    Sketcher.Constraint("Symmetric", 3, 2, 6, 2, -2),
    Sketcher.Constraint("Symmetric", 9, 2, 12, 2, -2),
    Sketcher.Constraint("Equal", 11, 13),
    Sketcher.Constraint("Equal", 15, 0),
    Sketcher.Constraint("Equal", 7, 8),
    Sketcher.Constraint("Equal", 14, 16),
    Sketcher.Constraint("DistanceX", 1, 1, 1, 2, Q("2 mm")),
    Sketcher.Constraint("DistanceX", 17, 1, 17, 2, Q("30 mm")),
    Sketcher.Constraint("DistanceX", 9, 1, 9, 2, Q("7.5 mm")),
    Sketcher.Constraint("DistanceY", -1, 1, 2, 2, Q("15 mm")),
    Sketcher.Constraint("DistanceX", 1, 2, 4, 2, Q("5 mm")),
    Sketcher.Constraint("DistanceY", 8, 2, 5, 2, Q("5 mm")),
])
sketch6.setExpression("Constraints[49]", "Params.sketch6_width")
sketch6.setExpression("Constraints[50]", "Params.sketch6_width2")
sketch6.setExpression("Constraints[51]", "Params.sketch6_width3")
pad6 = body3.newObject("PartDesign::Pad", "Pad005")
pad6.Profile = sketch6
pad6.setExpression("Length", "Params.pad6_length")
doc.recompute()

fillet5 = body3.newObject("PartDesign::Fillet", "Fillet004")
fillet5.Base = (pad6, edges_at(pad6, [(4.5, 4.5, 0.75), (-4.5, 4.5, 0.75)]))
fillet5.setExpression("Radius", "Params.fillet5_radius")
doc.recompute()

fillet6 = body3.newObject("PartDesign::Fillet", "Fillet005")
fillet6.Base = (fillet5, edges_at(fillet5, [
    (0, -4.5, 0),
    (-15, 0, 0),
    (-11.25, 4.5, 0),
    (-5.379, 5.379, 0),
    (-4.5, 11.25, 0),
    (0, 15, 0),
    (4.5, 11.25, 0),
    (5.379, 5.379, 0),
    (11.25, 4.5, 0),
    (15, 0, 0),
]))
fillet6.setExpression("Radius", "Params.fillet6_radius")

doc.recompute()
